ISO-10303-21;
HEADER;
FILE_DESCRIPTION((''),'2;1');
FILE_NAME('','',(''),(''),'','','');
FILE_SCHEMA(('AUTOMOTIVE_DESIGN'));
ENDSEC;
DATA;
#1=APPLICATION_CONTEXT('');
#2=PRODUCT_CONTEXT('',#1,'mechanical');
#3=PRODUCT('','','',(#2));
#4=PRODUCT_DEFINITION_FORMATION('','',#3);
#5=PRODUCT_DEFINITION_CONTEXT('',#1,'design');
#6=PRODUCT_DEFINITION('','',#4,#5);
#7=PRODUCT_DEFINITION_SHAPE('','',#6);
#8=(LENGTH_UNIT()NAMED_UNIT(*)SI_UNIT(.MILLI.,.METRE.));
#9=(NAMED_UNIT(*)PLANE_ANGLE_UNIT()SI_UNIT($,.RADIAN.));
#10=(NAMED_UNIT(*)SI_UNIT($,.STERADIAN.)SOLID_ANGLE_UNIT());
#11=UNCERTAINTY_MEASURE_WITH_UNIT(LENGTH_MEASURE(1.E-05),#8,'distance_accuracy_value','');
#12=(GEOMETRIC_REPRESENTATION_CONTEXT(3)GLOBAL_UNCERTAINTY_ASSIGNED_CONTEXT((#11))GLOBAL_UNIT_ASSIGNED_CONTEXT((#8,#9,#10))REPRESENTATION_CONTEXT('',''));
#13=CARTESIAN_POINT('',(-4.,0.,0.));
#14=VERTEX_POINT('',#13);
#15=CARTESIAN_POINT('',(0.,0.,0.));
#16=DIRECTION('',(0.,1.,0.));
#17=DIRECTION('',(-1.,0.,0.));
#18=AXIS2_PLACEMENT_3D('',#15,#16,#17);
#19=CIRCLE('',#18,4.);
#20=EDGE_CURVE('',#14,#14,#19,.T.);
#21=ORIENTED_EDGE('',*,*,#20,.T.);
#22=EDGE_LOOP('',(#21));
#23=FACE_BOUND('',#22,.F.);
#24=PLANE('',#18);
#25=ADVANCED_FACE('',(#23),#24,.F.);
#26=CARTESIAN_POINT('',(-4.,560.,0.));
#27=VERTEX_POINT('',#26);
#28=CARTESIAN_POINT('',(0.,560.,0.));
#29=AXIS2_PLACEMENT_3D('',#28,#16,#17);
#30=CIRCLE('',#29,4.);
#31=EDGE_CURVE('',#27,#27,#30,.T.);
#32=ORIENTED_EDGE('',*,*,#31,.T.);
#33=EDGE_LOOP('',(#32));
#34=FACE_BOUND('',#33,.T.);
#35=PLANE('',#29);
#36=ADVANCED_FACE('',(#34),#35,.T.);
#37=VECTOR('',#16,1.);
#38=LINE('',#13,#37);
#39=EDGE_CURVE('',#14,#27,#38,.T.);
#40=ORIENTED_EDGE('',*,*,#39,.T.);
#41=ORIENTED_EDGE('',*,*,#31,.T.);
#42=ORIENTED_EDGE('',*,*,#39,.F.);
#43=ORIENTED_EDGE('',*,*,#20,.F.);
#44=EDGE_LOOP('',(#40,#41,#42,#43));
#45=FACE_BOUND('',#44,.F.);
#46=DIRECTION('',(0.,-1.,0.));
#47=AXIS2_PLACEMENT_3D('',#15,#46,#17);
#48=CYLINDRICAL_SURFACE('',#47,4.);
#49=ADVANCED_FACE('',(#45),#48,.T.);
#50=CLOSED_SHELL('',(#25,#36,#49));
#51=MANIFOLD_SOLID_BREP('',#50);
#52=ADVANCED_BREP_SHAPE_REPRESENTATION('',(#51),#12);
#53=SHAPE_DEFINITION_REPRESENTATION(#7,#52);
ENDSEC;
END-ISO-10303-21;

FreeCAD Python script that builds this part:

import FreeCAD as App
import Part
import Sketcher
from FreeCAD import Vector
Q = App.Units.Quantity

doc = App.newDocument("Part")
body = doc.addObject("PartDesign::Body", "Body")

# Sketch on XZ plane
sketch1 = body.newObject("Sketcher::SketchObject", "Sketch")
sketch1.AttachmentSupport = (doc.getObject("XZ_Plane"), [""])
sketch1.MapMode = "FlatFace"
sketch1.addGeometry(Part.Circle(Vector(0, 0, 0), Vector(0, 0, 1), 4), False)
sketch1.addConstraint([
    Sketcher.Constraint("Coincident", 0, 3, -1, 1),
    Sketcher.Constraint("Diameter", 0, Q("8 mm")),
])
pad1 = body.newObject("PartDesign::Pad", "Pad")
pad1.Profile = sketch1
pad1.Length = 560
pad1.Reversed = True

doc.recompute()
